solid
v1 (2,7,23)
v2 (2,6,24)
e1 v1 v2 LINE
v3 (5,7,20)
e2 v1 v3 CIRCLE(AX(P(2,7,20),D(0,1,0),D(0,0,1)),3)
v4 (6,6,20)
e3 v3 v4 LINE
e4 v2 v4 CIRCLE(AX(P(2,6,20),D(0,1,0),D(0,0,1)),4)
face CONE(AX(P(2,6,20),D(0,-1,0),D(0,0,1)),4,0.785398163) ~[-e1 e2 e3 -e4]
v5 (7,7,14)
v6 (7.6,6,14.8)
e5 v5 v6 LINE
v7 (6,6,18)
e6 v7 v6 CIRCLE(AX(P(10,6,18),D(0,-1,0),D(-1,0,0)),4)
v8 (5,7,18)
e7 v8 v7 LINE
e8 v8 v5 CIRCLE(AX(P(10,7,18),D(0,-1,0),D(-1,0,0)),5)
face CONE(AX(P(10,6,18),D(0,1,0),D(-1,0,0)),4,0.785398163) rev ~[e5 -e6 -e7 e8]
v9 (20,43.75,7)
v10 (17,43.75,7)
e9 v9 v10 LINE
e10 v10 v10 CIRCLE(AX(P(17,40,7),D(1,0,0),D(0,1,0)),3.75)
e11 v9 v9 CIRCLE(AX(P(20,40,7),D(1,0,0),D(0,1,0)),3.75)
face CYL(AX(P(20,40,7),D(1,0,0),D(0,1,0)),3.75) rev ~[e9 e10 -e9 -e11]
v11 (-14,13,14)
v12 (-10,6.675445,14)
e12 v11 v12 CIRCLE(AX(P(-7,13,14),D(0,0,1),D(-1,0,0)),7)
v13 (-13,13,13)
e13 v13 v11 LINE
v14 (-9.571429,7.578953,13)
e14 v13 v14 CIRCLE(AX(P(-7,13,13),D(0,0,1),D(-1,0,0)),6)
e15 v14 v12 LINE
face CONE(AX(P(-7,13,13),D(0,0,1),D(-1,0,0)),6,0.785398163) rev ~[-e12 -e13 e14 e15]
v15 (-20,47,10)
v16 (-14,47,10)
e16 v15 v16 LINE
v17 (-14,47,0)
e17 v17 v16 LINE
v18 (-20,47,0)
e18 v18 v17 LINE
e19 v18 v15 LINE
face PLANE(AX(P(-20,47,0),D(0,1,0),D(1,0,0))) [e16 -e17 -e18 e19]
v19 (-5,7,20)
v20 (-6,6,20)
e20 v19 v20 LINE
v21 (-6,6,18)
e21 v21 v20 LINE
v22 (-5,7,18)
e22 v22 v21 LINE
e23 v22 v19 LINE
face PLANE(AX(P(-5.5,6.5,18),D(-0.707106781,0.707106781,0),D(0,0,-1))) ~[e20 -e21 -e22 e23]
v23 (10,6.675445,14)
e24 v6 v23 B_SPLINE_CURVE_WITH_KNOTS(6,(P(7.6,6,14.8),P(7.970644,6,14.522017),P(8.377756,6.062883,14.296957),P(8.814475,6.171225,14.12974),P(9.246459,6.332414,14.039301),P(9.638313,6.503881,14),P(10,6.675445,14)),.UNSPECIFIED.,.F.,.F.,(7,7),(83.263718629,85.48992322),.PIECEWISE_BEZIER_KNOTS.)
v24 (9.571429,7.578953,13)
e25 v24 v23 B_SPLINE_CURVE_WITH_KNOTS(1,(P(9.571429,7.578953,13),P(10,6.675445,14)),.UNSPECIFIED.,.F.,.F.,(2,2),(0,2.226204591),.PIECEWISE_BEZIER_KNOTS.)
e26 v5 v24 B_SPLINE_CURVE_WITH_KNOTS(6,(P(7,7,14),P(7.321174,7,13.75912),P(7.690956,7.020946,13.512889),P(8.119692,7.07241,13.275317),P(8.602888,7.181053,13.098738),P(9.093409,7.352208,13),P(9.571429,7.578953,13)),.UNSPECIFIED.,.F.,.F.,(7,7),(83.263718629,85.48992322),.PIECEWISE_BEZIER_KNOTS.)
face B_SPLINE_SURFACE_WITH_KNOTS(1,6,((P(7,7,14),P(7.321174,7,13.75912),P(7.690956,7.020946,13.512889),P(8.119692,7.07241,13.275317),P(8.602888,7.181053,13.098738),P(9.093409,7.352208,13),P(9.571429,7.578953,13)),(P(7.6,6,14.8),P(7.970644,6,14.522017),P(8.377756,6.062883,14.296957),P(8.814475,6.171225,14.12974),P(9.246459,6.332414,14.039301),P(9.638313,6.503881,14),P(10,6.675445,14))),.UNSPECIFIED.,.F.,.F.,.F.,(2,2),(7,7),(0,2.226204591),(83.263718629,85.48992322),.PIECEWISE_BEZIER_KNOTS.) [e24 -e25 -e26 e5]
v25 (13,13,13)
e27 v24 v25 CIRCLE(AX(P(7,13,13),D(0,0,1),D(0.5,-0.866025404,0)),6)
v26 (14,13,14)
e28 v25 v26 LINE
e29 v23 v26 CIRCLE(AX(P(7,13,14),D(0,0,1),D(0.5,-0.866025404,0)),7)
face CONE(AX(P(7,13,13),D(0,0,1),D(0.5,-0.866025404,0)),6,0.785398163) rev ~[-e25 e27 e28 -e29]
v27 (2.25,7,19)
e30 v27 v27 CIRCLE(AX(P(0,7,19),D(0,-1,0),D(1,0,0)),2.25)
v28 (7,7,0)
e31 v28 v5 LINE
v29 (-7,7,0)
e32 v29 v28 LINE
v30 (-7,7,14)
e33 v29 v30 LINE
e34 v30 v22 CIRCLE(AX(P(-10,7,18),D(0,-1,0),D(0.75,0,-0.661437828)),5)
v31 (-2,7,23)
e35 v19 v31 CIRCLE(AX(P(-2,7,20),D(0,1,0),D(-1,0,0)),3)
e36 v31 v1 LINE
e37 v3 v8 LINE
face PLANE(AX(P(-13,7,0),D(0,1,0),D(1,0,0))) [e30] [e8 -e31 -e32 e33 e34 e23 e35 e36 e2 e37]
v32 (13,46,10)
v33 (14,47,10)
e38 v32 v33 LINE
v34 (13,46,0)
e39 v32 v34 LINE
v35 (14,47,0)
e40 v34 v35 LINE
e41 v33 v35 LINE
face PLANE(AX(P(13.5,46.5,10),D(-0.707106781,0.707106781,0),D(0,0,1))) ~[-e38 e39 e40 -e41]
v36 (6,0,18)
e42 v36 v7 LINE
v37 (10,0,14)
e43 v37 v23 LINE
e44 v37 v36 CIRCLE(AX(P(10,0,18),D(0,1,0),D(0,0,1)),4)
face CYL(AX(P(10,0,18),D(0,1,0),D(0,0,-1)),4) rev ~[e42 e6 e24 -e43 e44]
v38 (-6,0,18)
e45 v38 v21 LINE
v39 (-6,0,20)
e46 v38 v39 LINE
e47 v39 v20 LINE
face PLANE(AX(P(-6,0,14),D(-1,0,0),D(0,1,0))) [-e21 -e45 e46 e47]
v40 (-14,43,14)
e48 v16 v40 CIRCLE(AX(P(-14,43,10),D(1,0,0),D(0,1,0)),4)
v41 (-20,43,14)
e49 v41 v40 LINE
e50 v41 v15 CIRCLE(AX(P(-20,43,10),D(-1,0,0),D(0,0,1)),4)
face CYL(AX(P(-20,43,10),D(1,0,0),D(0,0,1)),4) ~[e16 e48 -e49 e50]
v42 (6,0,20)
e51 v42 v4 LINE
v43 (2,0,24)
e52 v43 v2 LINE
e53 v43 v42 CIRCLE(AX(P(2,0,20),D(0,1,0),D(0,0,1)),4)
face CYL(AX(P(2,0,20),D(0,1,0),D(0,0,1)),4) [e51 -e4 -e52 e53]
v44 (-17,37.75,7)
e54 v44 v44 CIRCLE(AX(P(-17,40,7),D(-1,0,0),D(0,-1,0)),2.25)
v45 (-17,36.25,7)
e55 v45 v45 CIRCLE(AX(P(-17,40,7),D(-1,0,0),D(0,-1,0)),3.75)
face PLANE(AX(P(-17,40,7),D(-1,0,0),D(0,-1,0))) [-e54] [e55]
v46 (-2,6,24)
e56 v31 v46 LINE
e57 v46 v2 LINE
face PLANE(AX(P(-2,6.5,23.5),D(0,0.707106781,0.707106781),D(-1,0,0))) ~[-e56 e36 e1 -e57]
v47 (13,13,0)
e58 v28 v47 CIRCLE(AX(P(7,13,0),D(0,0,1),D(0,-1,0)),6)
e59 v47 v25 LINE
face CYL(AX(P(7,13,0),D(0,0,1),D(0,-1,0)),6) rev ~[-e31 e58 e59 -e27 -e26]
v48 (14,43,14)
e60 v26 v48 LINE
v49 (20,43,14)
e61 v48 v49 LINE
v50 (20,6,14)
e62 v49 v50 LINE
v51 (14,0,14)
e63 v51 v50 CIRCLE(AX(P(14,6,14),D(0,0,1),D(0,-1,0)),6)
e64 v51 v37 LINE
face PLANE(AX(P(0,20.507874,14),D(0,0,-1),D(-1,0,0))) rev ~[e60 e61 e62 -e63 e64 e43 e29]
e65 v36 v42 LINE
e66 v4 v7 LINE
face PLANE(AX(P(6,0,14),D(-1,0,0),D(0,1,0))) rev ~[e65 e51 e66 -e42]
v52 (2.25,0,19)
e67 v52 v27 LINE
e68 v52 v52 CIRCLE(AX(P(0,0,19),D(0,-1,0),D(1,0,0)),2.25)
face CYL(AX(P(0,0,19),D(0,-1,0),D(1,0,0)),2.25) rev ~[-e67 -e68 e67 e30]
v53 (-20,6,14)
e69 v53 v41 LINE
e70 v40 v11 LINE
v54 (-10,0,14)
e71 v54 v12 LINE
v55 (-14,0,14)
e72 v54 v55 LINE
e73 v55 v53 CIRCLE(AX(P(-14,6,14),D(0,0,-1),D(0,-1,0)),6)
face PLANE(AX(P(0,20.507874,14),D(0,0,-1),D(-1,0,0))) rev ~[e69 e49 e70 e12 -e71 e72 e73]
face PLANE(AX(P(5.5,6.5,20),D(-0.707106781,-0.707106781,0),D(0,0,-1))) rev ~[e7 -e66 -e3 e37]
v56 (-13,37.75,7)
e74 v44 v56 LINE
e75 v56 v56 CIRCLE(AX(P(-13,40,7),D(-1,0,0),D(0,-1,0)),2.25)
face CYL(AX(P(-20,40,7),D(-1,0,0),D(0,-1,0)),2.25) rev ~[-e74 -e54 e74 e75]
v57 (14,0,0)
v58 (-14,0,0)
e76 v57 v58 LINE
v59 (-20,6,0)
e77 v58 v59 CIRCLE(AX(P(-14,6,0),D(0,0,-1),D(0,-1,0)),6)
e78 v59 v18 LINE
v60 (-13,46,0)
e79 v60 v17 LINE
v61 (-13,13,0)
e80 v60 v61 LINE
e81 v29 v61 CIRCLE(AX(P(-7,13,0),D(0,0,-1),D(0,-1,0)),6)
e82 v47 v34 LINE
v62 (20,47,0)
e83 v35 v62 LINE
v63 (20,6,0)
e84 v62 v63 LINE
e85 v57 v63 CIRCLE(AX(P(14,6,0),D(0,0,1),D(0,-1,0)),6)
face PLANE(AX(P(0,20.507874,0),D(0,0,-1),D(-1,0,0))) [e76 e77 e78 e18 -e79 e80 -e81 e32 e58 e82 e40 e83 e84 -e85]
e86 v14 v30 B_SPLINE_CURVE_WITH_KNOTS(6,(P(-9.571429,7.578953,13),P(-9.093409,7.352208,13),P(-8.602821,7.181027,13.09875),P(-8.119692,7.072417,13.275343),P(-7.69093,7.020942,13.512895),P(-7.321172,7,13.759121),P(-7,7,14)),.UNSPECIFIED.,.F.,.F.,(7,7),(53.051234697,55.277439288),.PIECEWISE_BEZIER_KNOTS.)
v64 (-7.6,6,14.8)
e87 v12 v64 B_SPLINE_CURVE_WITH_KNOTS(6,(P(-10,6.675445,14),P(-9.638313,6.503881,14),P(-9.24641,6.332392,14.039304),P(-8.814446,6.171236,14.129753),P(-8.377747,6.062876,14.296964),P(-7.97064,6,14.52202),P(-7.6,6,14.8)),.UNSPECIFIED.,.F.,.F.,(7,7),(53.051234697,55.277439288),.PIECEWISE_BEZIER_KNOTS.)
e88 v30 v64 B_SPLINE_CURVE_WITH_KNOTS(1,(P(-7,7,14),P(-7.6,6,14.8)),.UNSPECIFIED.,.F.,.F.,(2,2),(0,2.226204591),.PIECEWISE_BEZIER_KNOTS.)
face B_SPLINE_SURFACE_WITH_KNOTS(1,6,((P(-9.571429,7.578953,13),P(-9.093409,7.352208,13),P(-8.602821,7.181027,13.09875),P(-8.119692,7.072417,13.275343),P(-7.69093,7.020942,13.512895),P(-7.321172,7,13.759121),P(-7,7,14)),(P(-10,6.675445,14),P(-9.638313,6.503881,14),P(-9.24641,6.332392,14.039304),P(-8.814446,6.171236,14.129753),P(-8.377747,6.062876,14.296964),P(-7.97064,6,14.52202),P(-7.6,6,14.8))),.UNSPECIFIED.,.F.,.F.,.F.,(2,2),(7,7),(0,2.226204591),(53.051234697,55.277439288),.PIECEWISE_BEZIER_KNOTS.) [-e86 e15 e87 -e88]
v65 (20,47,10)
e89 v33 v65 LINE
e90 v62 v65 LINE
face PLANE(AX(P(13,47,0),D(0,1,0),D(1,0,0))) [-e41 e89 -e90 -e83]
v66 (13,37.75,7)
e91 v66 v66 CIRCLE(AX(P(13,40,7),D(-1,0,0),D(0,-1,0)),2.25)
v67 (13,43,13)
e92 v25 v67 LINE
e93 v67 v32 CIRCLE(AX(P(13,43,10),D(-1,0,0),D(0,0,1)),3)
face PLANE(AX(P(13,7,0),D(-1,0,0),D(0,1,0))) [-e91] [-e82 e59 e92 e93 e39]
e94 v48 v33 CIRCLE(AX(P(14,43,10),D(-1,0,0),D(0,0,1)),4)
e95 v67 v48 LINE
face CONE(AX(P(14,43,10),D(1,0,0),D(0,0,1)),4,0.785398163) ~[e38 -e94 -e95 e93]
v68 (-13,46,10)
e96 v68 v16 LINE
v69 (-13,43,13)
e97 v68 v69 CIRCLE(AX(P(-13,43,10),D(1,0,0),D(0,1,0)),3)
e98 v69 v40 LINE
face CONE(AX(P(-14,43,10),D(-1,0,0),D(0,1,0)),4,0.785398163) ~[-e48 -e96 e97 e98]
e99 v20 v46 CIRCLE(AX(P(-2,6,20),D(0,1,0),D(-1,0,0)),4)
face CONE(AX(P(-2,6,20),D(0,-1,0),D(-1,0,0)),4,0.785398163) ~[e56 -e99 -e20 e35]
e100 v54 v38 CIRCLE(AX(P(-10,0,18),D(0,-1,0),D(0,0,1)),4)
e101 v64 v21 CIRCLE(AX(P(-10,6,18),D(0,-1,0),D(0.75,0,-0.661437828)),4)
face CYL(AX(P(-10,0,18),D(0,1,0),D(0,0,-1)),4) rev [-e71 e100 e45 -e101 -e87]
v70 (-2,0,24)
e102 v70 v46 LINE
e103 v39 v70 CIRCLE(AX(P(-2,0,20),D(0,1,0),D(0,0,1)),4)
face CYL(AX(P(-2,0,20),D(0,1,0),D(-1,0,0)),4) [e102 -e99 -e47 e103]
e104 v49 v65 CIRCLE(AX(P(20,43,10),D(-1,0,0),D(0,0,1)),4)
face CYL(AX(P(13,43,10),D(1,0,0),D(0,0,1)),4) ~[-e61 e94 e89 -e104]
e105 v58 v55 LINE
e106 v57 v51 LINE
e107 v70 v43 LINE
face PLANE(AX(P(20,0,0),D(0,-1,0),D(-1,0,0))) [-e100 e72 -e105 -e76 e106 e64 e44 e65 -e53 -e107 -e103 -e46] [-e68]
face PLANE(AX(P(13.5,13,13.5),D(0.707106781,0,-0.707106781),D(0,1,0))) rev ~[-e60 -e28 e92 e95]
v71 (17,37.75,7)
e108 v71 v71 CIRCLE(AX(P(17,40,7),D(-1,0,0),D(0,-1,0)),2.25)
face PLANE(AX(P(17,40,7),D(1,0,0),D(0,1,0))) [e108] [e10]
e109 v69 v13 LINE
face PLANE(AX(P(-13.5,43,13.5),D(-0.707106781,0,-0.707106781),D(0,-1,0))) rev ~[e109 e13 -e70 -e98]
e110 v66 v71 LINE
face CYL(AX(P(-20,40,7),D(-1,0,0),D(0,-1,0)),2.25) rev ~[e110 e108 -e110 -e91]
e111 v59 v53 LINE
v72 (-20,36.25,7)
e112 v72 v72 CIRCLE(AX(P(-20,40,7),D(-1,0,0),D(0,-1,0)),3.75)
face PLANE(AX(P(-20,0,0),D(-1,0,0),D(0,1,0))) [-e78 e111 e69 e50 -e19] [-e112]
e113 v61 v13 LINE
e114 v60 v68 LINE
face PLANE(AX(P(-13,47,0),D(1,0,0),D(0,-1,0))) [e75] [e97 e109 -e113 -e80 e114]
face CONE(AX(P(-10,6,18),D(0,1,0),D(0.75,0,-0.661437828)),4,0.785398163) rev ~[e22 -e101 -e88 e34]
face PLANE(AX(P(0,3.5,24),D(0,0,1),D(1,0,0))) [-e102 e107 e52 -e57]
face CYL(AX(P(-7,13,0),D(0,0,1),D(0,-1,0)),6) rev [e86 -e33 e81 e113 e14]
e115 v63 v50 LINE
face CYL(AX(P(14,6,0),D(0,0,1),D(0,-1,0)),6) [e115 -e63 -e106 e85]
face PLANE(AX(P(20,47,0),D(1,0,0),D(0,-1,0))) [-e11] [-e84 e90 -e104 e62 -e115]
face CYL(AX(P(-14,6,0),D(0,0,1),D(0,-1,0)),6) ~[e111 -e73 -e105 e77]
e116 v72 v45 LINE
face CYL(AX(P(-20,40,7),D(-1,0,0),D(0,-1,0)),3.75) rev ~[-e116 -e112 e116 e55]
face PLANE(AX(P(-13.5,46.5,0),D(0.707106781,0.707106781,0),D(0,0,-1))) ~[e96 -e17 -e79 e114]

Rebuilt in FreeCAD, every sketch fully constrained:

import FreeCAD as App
import Part
import Sketcher
Q = App.Units.Quantity


def edges_at(feature, points):
    """Names of the edges that pass closest to the given points."""
    edges = feature.Shape.Edges
    near = lambda p: min(range(len(edges)), key=lambda i: edges[i].distToShape(Part.Vertex(*p))[0])
    return sorted({f"Edge{near(p) + 1}" for p in points})


def add_polygon(sketch, points):
    """Adds a closed chain of lines whose ends are joined by coincident constraints."""
    first, n = sketch.GeometryCount, len(points)
    for a, b in zip(points, points[1:] + points[:1]):
        sketch.addGeometry(Part.LineSegment(App.Vector(*a, 0), App.Vector(*b, 0)), False)
    for i in range(n):
        sketch.addConstraint(Sketcher.Constraint("Coincident", first + i, 2, first + (i + 1) % n, 1))

doc = App.newDocument("Part")
body = doc.addObject("PartDesign::Body", "Body")

sketch1 = body.newObject("Sketcher::SketchObject", "Sketch")
sketch1.AttachmentSupport = (doc.getObject("XY_Plane"), [""])
sketch1.MapMode = "FlatFace"
add_polygon(sketch1, [(-13, 47), (-20, 47), (-20, 0), (20, 0), (20, 47), (13, 47), (13, 7), (-13, 7)])
sketch1.addConstraint(Sketcher.Constraint("Horizontal", 0))
sketch1.addConstraint(Sketcher.Constraint("Vertical", 1))
sketch1.addConstraint(Sketcher.Constraint("Horizontal", 2))
sketch1.addConstraint(Sketcher.Constraint("Vertical", 3))
sketch1.addConstraint(Sketcher.Constraint("Horizontal", 4))
sketch1.addConstraint(Sketcher.Constraint("Vertical", 5))
sketch1.addConstraint(Sketcher.Constraint("Horizontal", 6))
sketch1.addConstraint(Sketcher.Constraint("Vertical", 7))
sketch1.addConstraint(Sketcher.Constraint("Symmetric", 1, 2, 2, 2, -1, 1))
sketch1.addConstraint(Sketcher.Constraint("Symmetric", 4, 2, 7, 2, -2))
sketch1.addConstraint(Sketcher.Constraint("Equal", 2, 5))
sketch1.addConstraint(Sketcher.Constraint("DistanceX", 0, 2, 0, 1, Q("7 mm")))
sketch1.addConstraint(Sketcher.Constraint("DistanceX", 2, 1, 2, 2, Q("40 mm")))
sketch1.addConstraint(Sketcher.Constraint("DistanceY", 1, 2, 1, 1, Q("47 mm")))
pad1 = body.newObject("PartDesign::Pad", "Pad")
pad1.Profile = sketch1
pad1.Length = 14

sketch2 = body.newObject("Sketcher::SketchObject", "Sketch001")
sketch2.AttachmentSupport = (doc.getObject("XY_Plane"), [""])
sketch2.MapMode = "FlatFace"
sketch2.AttachmentOffset = App.Placement(App.Vector(0, 0, 14), App.Rotation())
add_polygon(sketch2, [(-6, 7), (-6, 0), (6, 0), (6, 7)])
sketch2.addConstraint(Sketcher.Constraint("Vertical", 0))
sketch2.addConstraint(Sketcher.Constraint("Horizontal", 1))
sketch2.addConstraint(Sketcher.Constraint("Vertical", 2))
sketch2.addConstraint(Sketcher.Constraint("Horizontal", 3))
sketch2.addConstraint(Sketcher.Constraint("Symmetric", 0, 2, 1, 2, -1, 1))
sketch2.addConstraint(Sketcher.Constraint("DistanceX", 1, 1, 1, 2, Q("12 mm")))
sketch2.addConstraint(Sketcher.Constraint("DistanceY", 0, 2, 0, 1, Q("7 mm")))
pad2 = body.newObject("PartDesign::Pad", "Pad001")
pad2.Profile = sketch2
pad2.Length = 10
doc.recompute()

fillet = body.newObject("PartDesign::Fillet", "Fillet")
fillet.Base = (pad2, edges_at(pad2, [
    (-6, 3.5, 14),
    (-6, 3.5, 24),
    (6, 3.5, 24),
    (6, 3.5, 14),
]))
fillet.Radius = 4
doc.recompute()

fillet2 = body.newObject("PartDesign::Fillet", "Fillet001")
fillet2.Base = (fillet, edges_at(fillet, [
    (20, 0, 7),
    (-20, 0, 7),
    (-13, 7, 7),
    (13, 7, 7),
]))
fillet2.Radius = 6

sketch3 = body.newObject("Sketcher::SketchObject", "Sketch002")
sketch3.AttachmentSupport = (doc.getObject("XZ_Plane"), [""])
sketch3.MapMode = "FlatFace"
sketch3.addGeometry(Part.Circle(App.Vector(0, 19, 0), App.Vector(0, 0, 1), 2.25), False)
sketch3.addConstraint(Sketcher.Constraint("PointOnObject", 0, 3, -2))
sketch3.addConstraint(Sketcher.Constraint("Diameter", 0, Q("4.5 mm")))
sketch3.addConstraint(Sketcher.Constraint("DistanceY", -1, 1, 0, 3, Q("19 mm")))
pocket1 = body.newObject("PartDesign::Pocket", "Pocket")
pocket1.Profile = sketch3
pocket1.Length = 7

sketch4 = body.newObject("Sketcher::SketchObject", "Sketch003")
sketch4.AttachmentSupport = (doc.getObject("YZ_Plane"), [""])
sketch4.MapMode = "FlatFace"
sketch4.AttachmentOffset = App.Placement(App.Vector(0, 0, -20), App.Rotation())
sketch4.addGeometry(Part.Circle(App.Vector(40, 7, 0), App.Vector(0, 0, 1), 2.25), False)
sketch4.addConstraint(Sketcher.Constraint("Diameter", 0, Q("4.5 mm")))
sketch4.addConstraint(Sketcher.Constraint("DistanceX", -1, 1, 0, 3, Q("40 mm")))
sketch4.addConstraint(Sketcher.Constraint("DistanceY", -1, 1, 0, 3, Q("7 mm")))
pocket2 = body.newObject("PartDesign::Pocket", "Pocket001")
pocket2.Profile = sketch4
pocket2.Length = 41
pocket2.Reversed = True
doc.recompute()

fillet3 = body.newObject("PartDesign::Fillet", "Fillet002")
fillet3.Base = (pocket2, edges_at(pocket2, [(16.5, 47, 14), (-16.5, 47, 14)]))
fillet3.Radius = 4
doc.recompute()

chamfer = body.newObject("PartDesign::Chamfer", "Chamfer")
chamfer.Base = (fillet3, edges_at(fillet3, [(-13, 47, 5), (13, 47, 5)]))
chamfer.Size = 1

sketch5 = body.newObject("Sketcher::SketchObject", "Sketch004")
sketch5.AttachmentSupport = (doc.getObject("YZ_Plane"), [""])
sketch5.MapMode = "FlatFace"
sketch5.AttachmentOffset = App.Placement(App.Vector(0, 0, -20), App.Rotation())
sketch5.addGeometry(Part.Circle(App.Vector(40, 7, 0), App.Vector(0, 0, 1), 3.75), False)
sketch5.addConstraint(Sketcher.Constraint("Diameter", 0, Q("7.5 mm")))
sketch5.addConstraint(Sketcher.Constraint("DistanceX", -1, 1, 0, 3, Q("40 mm")))
sketch5.addConstraint(Sketcher.Constraint("DistanceY", -1, 1, 0, 3, Q("7 mm")))
pocket3 = body.newObject("PartDesign::Pocket", "Pocket002")
pocket3.Profile = sketch5
pocket3.Length = 3
pocket3.Reversed = True

sketch6 = body.newObject("Sketcher::SketchObject", "Sketch005")
sketch6.AttachmentSupport = (doc.getObject("YZ_Plane"), [""])
sketch6.MapMode = "FlatFace"
sketch6.AttachmentOffset = App.Placement(App.Vector(0, 0, 20), App.Rotation())
sketch6.addGeometry(Part.Circle(App.Vector(40, 7, 0), App.Vector(0, 0, 1), 3.75), False)
sketch6.addConstraint(Sketcher.Constraint("Diameter", 0, Q("7.5 mm")))
sketch6.addConstraint(Sketcher.Constraint("DistanceX", -1, 1, 0, 3, Q("40 mm")))
sketch6.addConstraint(Sketcher.Constraint("DistanceY", -1, 1, 0, 3, Q("7 mm")))
pocket4 = body.newObject("PartDesign::Pocket", "Pocket003")
pocket4.Profile = sketch6
pocket4.Length = 3

doc.recompute()
